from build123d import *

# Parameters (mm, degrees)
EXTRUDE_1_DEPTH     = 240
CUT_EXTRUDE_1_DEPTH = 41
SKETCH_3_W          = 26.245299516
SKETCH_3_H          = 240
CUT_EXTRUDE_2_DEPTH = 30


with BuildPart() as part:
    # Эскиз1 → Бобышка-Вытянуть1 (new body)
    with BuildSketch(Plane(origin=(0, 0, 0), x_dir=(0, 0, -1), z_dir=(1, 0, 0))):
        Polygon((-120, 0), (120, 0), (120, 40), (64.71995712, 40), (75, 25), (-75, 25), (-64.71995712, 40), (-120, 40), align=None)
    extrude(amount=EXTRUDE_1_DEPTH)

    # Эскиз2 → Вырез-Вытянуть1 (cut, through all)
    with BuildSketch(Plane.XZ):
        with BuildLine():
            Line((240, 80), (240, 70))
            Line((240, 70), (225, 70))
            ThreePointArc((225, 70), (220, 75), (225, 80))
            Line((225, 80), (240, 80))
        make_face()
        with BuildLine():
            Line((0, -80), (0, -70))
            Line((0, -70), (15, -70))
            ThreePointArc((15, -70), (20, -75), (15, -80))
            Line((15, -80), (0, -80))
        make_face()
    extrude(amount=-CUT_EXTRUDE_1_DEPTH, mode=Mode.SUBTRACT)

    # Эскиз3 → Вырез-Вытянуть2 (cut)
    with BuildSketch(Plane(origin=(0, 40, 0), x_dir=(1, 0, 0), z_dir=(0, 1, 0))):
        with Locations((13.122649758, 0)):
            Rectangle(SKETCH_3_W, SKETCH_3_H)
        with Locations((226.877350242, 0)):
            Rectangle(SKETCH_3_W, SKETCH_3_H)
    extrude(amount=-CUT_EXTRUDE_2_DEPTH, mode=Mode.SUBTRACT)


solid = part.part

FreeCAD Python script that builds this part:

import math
import FreeCAD as App
import Part
import Sketcher
from FreeCAD import Vector


def add_polygon(sketch, points):
    """Adds a closed chain of lines whose ends are joined by coincident constraints."""
    first, n = sketch.GeometryCount, len(points)
    for a, b in zip(points, points[1:] + points[:1]):
        sketch.addGeometry(Part.LineSegment(App.Vector(*a, 0), App.Vector(*b, 0)), False)
    for i in range(n):
        sketch.addConstraint(Sketcher.Constraint("Coincident", first + i, 2, first + (i + 1) % n, 1))

doc = App.newDocument("Part")
body = doc.addObject("PartDesign::Body", "Body")

sketch1 = body.newObject("Sketcher::SketchObject", "Sketch")
sketch1.AttachmentSupport = (doc.getObject("YZ_Plane"), [""])
sketch1.MapMode = "FlatFace"
add_polygon(sketch1, [(0, 120), (0, -120), (40, -120), (40, -65), (25, -75), (25, 75), (40, 65), (40, 120)])
sketch1.addConstraint([
    Sketcher.Constraint("Vertical", 0),
    Sketcher.Constraint("Horizontal", 1),
    Sketcher.Constraint("Vertical", 2),
    Sketcher.Constraint("Vertical", 4),
    Sketcher.Constraint("Vertical", 6),
    Sketcher.Constraint("Horizontal", 7),
    Sketcher.Constraint("Symmetric", 0, 2, 7, 2, -1, 1),
    Sketcher.Constraint("Symmetric", 2, 2, 5, 2, -1),
    Sketcher.Constraint("Equal", 3, 5),
    Sketcher.Constraint("DistanceX", 1, 1, 1, 2, 40.0),
    Sketcher.Constraint("DistanceY", 0, 2, 0, 1, 240.0),
    Sketcher.Constraint("DistanceY", 4, 1, 4, 2, 150.0),
    Sketcher.Constraint("DistanceX", -1, 1, 3, 2, 25.0),
    Sketcher.Constraint("Distance", 3, 18.184589),
])
pad1 = body.newObject("PartDesign::Pad", "Pad")
pad1.Profile = sketch1
pad1.Length = 240

sketch2 = body.newObject("Sketcher::SketchObject", "Sketch001")
sketch2.AttachmentSupport = (doc.getObject("XZ_Plane"), [""])
sketch2.MapMode = "FlatFace"
sketch2.addGeometry([
    Part.LineSegment(Vector(240, 70, 0), Vector(240, 80, 0)),
    Part.LineSegment(Vector(240, 80, 0), Vector(225, 80, 0)),
    Part.ArcOfCircle(Part.Circle(Vector(225, 75, 0), Vector(0, 0, 1), 5), math.radians(90), math.radians(270)),
    Part.LineSegment(Vector(225, 70, 0), Vector(240, 70, 0)),
    Part.LineSegment(Vector(0, -70, 0), Vector(0, -80, 0)),
    Part.LineSegment(Vector(0, -80, 0), Vector(15, -80, 0)),
    Part.ArcOfCircle(Part.Circle(Vector(15, -75, 0), Vector(0, 0, 1), 5), math.radians(-90), math.radians(90)),
    Part.LineSegment(Vector(15, -70, 0), Vector(0, -70, 0)),
], False)
sketch2.addConstraint([
    Sketcher.Constraint("Coincident", 0, 2, 1, 1),
    Sketcher.Constraint("Tangent", 1, 2, 2, 1),
    Sketcher.Constraint("Tangent", 2, 2, 3, 1),
    Sketcher.Constraint("Coincident", 3, 2, 0, 1),
    Sketcher.Constraint("Coincident", 4, 2, 5, 1),
    Sketcher.Constraint("Tangent", 5, 2, 6, 1),
    Sketcher.Constraint("Tangent", 6, 2, 7, 1),
    Sketcher.Constraint("Coincident", 7, 2, 4, 1),
    Sketcher.Constraint("Vertical", 0),
    Sketcher.Constraint("Horizontal", 1),
    Sketcher.Constraint("Horizontal", 3),
    Sketcher.Constraint("Vertical", 4),
    Sketcher.Constraint("Horizontal", 5),
    Sketcher.Constraint("Horizontal", 7),
    Sketcher.Constraint("Equal", 2, 6),
    Sketcher.Constraint("PointOnObject", 4, 2, -2),
    Sketcher.Constraint("Equal", 3, 5),
    Sketcher.Constraint("Radius", 2, 5.0),
    Sketcher.Constraint("DistanceX", 1, 2, 1, 1, 15.0),
    Sketcher.Constraint("DistanceX", -1, 1, 2, 3, 225.0),
    Sketcher.Constraint("DistanceY", -1, 1, 2, 3, 75.0),
    Sketcher.Constraint("DistanceY", 6, 3, -1, 1, 75.0),
])
pocket1 = body.newObject("PartDesign::Pocket", "Pocket")
pocket1.Profile = sketch2
pocket1.Type = "ThroughAll"

sketch3 = body.newObject("Sketcher::SketchObject", "Sketch002")
sketch3.AttachmentSupport = (doc.getObject("XZ_Plane"), [""])
sketch3.MapMode = "FlatFace"
sketch3.AttachmentOffset = App.Placement(Vector(0, 0, -40), App.Rotation())
add_polygon(sketch3, [(0, -120), (0, 120), (26, 120), (26, -120)])
add_polygon(sketch3, [(214, -120), (214, 120), (240, 120), (240, -120)])
sketch3.addConstraint([
    Sketcher.Constraint("Vertical", 0),
    Sketcher.Constraint("Horizontal", 1),
    Sketcher.Constraint("Vertical", 2),
    Sketcher.Constraint("Horizontal", 3),
    Sketcher.Constraint("Vertical", 4),
    Sketcher.Constraint("Horizontal", 5),
    Sketcher.Constraint("Vertical", 6),
    Sketcher.Constraint("Horizontal", 7),
    Sketcher.Constraint("Symmetric", 0, 2, 3, 2, -1, 1),
    Sketcher.Constraint("Horizontal", 1, 2, 4, 2),
    Sketcher.Constraint("Horizontal", 3, 2, 6, 2),
    Sketcher.Constraint("Equal", 3, 5),
    Sketcher.Constraint("DistanceY", 0, 1, 0, 2, 240.0),
    Sketcher.Constraint("DistanceX", -1, 1, 5, 2, 240.0),
    Sketcher.Constraint("DistanceX", 1, 1, 1, 2, 26.2453),
])
pocket2 = body.newObject("PartDesign::Pocket", "Pocket001")
pocket2.Profile = sketch3
pocket2.Length = 30
pocket2.Reversed = True

doc.recompute()
